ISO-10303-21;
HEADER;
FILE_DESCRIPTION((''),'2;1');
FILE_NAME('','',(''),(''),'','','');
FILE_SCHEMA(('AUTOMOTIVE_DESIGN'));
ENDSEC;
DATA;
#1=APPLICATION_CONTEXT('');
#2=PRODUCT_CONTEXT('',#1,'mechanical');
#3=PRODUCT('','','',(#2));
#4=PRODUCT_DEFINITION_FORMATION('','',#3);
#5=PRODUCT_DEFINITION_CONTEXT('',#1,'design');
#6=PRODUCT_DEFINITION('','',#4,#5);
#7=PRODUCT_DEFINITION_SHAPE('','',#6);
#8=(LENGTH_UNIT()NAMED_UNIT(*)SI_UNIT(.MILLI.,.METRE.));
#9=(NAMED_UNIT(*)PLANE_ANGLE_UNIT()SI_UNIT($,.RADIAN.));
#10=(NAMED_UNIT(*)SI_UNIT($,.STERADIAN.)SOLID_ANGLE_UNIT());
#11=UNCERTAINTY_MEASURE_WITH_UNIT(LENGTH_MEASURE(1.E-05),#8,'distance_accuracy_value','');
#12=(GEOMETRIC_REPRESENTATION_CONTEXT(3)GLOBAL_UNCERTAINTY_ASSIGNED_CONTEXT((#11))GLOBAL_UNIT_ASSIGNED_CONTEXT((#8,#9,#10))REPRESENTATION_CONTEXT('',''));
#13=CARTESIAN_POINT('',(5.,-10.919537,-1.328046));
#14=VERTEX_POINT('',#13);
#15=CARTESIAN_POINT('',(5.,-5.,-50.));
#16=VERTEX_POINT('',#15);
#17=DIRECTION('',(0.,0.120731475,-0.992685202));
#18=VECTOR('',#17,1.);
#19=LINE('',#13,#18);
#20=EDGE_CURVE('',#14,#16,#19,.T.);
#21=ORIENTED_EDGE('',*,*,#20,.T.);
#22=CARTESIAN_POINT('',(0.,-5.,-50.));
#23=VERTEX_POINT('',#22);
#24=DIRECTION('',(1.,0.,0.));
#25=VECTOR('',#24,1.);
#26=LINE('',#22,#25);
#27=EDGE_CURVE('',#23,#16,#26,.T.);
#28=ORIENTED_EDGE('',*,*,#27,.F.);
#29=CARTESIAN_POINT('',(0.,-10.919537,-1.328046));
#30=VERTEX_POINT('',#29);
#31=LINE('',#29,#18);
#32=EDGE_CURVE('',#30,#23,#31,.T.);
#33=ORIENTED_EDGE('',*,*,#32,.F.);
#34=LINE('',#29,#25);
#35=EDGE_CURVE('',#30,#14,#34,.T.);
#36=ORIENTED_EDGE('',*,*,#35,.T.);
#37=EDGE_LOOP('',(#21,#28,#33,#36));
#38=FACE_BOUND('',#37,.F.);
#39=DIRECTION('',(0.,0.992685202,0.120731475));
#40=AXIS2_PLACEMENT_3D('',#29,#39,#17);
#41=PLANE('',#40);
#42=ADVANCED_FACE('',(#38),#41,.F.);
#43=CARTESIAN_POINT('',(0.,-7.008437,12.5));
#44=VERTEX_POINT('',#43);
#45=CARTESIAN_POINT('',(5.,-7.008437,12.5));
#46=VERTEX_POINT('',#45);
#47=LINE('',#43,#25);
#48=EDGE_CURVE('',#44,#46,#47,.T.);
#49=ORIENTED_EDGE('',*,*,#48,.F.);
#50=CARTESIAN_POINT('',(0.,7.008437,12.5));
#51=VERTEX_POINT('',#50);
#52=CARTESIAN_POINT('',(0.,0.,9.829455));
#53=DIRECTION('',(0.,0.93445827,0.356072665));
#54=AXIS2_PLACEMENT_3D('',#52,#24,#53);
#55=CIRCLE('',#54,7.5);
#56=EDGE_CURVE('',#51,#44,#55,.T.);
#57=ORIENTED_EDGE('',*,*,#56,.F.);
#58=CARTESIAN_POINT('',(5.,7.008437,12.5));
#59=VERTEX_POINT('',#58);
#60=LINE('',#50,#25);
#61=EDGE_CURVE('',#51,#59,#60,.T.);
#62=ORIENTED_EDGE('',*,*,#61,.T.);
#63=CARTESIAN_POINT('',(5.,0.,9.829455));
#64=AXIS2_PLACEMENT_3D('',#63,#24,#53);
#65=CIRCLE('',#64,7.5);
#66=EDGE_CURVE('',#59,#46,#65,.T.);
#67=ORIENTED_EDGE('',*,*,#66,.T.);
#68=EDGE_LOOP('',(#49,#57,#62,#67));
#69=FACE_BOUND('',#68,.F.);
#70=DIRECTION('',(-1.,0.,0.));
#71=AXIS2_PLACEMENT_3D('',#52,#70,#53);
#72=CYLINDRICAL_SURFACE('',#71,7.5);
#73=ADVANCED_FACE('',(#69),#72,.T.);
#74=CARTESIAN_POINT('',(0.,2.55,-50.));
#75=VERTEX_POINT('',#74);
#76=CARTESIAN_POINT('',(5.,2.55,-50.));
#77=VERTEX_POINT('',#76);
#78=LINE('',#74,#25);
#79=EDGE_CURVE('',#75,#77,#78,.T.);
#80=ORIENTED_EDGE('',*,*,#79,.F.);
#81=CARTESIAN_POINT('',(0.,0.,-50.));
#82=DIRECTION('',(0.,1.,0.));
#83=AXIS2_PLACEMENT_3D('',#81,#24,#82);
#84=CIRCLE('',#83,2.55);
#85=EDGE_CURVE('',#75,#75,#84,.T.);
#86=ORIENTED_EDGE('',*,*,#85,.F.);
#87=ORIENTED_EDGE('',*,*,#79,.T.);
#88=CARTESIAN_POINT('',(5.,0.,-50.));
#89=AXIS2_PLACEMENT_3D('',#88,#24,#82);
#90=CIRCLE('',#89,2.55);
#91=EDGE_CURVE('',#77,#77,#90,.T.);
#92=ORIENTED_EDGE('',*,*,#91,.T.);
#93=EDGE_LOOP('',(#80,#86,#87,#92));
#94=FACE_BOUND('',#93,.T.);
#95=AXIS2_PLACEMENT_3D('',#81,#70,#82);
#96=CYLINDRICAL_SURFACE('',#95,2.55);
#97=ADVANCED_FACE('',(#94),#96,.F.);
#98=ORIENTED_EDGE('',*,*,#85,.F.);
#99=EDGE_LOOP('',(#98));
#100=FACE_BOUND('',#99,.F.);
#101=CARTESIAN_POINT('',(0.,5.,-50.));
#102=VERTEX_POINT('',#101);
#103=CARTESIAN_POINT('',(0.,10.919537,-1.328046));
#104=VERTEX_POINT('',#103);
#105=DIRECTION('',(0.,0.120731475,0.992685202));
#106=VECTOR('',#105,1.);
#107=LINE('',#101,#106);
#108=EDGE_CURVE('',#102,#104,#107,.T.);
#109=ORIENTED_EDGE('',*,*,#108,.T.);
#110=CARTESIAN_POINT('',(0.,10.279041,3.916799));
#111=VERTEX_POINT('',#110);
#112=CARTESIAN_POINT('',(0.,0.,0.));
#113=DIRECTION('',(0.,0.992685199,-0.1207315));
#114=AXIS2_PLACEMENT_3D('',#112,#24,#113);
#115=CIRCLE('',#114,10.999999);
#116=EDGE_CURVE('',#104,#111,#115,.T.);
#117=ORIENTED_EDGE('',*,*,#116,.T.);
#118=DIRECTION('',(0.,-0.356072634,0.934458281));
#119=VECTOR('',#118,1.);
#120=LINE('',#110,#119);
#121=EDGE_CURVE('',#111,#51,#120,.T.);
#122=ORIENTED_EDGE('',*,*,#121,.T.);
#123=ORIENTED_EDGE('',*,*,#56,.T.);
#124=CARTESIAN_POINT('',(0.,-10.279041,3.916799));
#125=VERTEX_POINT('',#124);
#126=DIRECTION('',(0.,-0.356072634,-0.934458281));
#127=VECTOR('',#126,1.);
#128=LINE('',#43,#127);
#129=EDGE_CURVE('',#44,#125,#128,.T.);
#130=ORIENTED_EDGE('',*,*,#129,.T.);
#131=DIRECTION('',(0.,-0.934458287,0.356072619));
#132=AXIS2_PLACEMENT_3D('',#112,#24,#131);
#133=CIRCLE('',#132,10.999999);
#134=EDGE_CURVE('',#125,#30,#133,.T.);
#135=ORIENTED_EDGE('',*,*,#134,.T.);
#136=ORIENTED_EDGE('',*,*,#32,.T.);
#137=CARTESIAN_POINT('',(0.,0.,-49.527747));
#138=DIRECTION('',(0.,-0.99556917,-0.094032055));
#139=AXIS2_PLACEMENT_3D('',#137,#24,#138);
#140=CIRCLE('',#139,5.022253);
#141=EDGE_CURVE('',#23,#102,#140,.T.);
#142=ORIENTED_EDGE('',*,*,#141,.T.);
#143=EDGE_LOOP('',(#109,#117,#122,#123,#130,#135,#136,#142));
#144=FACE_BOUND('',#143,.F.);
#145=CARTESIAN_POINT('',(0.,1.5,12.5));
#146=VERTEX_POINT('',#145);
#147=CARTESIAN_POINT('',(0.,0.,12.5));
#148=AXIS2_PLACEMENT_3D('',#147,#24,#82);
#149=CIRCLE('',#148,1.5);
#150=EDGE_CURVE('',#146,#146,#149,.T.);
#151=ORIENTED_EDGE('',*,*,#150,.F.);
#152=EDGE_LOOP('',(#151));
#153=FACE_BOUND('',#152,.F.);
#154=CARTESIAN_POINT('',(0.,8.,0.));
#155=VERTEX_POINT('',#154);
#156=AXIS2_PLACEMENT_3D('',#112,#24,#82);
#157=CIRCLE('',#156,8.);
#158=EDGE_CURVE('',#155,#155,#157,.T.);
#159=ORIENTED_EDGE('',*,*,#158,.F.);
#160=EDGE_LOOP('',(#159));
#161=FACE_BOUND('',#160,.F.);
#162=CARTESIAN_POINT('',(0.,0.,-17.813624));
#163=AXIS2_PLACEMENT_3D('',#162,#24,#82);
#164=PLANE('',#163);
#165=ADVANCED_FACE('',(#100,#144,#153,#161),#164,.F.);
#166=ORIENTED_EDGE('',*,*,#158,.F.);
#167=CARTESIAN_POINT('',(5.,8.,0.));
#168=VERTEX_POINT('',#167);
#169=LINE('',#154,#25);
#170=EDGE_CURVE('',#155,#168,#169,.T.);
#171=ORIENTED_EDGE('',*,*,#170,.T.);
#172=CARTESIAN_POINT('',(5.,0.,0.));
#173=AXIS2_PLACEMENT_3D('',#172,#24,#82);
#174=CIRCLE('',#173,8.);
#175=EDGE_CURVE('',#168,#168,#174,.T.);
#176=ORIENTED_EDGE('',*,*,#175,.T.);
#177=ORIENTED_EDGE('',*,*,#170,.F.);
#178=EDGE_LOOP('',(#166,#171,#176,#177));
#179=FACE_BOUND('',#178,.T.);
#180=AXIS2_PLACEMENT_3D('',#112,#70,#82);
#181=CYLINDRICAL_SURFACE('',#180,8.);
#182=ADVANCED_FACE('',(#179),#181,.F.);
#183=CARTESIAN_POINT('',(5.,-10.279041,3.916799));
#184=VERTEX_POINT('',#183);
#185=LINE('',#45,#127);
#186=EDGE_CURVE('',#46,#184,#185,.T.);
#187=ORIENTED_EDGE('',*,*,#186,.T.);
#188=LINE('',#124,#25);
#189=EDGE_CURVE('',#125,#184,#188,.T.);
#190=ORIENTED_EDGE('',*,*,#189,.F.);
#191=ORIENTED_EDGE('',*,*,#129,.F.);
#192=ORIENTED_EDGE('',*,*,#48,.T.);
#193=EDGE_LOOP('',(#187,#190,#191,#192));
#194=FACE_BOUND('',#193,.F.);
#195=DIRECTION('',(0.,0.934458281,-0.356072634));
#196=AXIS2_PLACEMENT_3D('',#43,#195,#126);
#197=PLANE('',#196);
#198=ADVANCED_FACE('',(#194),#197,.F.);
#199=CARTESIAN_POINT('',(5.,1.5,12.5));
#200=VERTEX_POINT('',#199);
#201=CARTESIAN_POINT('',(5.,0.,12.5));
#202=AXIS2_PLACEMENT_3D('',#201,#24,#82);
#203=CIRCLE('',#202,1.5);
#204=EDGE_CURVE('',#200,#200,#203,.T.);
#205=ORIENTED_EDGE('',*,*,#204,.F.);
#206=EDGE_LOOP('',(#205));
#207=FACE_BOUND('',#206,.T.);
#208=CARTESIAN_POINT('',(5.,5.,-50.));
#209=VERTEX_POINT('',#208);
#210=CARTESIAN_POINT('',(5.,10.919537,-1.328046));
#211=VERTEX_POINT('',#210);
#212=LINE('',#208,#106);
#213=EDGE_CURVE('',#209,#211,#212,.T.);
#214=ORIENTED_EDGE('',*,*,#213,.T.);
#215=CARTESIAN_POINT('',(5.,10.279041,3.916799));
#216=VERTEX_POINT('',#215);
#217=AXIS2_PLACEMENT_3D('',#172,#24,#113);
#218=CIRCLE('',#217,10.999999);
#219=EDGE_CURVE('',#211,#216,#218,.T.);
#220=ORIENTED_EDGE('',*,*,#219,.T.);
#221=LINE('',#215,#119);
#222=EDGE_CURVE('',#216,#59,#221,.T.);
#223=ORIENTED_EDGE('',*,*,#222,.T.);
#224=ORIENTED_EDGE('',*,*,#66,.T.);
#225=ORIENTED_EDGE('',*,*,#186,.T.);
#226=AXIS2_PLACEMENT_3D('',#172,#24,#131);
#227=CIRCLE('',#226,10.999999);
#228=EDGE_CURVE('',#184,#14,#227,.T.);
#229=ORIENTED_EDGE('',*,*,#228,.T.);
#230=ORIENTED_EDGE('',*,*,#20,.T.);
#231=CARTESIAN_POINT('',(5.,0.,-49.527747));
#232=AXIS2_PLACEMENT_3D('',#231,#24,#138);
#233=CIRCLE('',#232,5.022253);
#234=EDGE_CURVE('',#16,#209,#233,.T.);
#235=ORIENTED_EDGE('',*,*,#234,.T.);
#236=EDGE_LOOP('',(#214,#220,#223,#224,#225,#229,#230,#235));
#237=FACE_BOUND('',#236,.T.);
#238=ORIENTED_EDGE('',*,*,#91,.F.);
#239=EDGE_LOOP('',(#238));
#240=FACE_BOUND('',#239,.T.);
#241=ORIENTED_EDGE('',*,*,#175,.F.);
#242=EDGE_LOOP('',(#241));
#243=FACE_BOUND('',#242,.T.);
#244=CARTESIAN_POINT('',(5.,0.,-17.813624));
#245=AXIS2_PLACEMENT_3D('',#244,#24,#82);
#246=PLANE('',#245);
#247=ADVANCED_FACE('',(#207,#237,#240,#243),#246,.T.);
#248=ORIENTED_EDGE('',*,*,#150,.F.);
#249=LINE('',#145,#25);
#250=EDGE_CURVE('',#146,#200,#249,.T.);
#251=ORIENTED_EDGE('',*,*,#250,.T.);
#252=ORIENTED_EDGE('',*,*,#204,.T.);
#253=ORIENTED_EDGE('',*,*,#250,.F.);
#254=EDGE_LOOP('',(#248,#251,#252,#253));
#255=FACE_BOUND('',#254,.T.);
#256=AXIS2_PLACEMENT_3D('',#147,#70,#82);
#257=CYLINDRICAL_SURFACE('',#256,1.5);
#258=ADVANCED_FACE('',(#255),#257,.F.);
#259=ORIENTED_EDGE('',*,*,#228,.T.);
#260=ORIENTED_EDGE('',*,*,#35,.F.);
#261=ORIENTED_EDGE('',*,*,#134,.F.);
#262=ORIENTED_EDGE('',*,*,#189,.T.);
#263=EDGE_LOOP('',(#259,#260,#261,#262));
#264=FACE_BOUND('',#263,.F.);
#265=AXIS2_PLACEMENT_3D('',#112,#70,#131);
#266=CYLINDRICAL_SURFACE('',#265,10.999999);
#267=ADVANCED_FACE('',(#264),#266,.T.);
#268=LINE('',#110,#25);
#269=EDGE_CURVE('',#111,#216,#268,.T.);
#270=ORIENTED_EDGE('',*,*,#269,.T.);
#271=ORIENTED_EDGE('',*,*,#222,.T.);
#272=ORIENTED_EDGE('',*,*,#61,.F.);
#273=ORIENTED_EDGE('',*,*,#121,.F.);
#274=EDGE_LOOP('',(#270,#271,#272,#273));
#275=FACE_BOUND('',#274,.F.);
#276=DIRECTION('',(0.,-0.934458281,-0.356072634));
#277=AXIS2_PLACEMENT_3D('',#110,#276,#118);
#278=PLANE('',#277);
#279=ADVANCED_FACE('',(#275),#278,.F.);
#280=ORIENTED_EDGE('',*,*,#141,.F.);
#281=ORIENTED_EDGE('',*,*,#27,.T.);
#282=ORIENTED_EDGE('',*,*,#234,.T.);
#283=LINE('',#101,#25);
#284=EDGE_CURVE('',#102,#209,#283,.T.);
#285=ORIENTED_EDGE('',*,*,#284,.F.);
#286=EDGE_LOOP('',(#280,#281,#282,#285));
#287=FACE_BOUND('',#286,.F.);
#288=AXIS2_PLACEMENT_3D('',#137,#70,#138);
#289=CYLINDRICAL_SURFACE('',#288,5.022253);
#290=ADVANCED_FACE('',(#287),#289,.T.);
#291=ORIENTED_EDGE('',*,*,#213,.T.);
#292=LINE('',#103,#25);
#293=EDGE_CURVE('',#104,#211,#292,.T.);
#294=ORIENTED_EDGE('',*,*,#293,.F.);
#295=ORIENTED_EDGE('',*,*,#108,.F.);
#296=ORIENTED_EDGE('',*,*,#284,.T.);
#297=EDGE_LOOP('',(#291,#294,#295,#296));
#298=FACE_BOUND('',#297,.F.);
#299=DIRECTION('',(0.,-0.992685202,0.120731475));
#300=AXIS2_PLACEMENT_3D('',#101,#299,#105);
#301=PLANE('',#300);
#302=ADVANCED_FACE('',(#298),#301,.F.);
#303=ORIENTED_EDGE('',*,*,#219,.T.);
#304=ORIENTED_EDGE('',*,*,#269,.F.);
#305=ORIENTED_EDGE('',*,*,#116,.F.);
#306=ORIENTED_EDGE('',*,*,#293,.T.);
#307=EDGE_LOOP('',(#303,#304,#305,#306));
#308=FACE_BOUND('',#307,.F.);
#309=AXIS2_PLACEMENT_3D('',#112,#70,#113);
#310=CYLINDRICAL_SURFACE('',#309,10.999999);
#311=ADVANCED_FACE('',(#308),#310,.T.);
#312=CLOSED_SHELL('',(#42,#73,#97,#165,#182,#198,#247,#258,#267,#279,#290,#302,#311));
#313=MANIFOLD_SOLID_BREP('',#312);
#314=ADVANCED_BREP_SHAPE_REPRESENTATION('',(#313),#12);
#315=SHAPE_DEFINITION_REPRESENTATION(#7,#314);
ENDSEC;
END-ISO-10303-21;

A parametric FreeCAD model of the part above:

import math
import FreeCAD as App
import Part
import Sketcher

V = App.Vector
Q = App.Units.Quantity

doc = App.newDocument("Part")
params = doc.addObject("Spreadsheet::Sheet", "Params")
for row, (alias, value) in enumerate([
    ("sketch1_diameter", "16 mm"),
    ("sketch1_diameter2", "3 mm"),
    ("sketch1_radius", "10.999999 mm"),
    ("sketch1_diameter3", "5.1 mm"),
    ("sketch1_radius2", "7.5 mm"),
    ("pad1_length", "5 mm"),
], start=1):
    params.set(f"A{row}", alias)
    params.set(f"B{row}", "=" + value)
    params.setAlias(f"B{row}", alias)

body = doc.addObject("PartDesign::Body", "Body")

# Sketch on YZ plane
sketch1 = body.newObject("Sketcher::SketchObject", "Sketch")
sketch1.AttachmentSupport = (doc.getObject("YZ_Plane"), [""])
sketch1.MapMode = "FlatFace"
sketch1.addGeometry([
    Part.LineSegment(V(10.279041, 3.916799, 0), V(7.008437, 12.5, 0)),  # 0
    Part.ArcOfCircle(Part.Circle(V(0, 9.829455, 0), V(0, 0, 1), 7.5), math.radians(20.8592), math.radians(159.1408)),  # 1
    Part.LineSegment(V(-7.008437, 12.5, 0), V(-10.279041, 3.916799, 0)),  # 2
    Part.ArcOfCircle(Part.Circle(V(0, 0, 0), V(0, 0, 1), 10.999999), math.radians(159.140803), math.radians(186.934321)),  # 3
    Part.LineSegment(V(-10.919537, -1.328046, 0), V(-5, -50, 0)),  # 4
    Part.ArcOfCircle(Part.Circle(V(0, -49.527747, 0), V(0, 0, 1), 5.022253), math.radians(-174.604389), math.radians(-5.395611)),  # 5
    Part.LineSegment(V(5, -50, 0), V(10.919537, -1.328046, 0)),  # 6
    Part.ArcOfCircle(Part.Circle(V(0, 0, 0), V(0, 0, 1), 10.999999), math.radians(-6.934321), math.radians(20.859197)),  # 7
    Part.Circle(V(0, -50, 0), V(0, 0, 1), 2.55),  # 8
    Part.Circle(V(0, 0, 0), V(0, 0, 1), 8),  # 9
    Part.Circle(V(0, 12.5, 0), V(0, 0, 1), 1.5),  # 10
], False)
sketch1.addConstraint([
    Sketcher.Constraint("Tangent", 0, 2, 1, 1),
    Sketcher.Constraint("Tangent", 1, 2, 2, 1),
    Sketcher.Constraint("Tangent", 2, 2, 3, 1),
    Sketcher.Constraint("Tangent", 3, 2, 4, 1),
    Sketcher.Constraint("Coincident", 4, 2, 5, 1),
    Sketcher.Constraint("Coincident", 5, 2, 6, 1),
    Sketcher.Constraint("Tangent", 6, 2, 7, 1),
    Sketcher.Constraint("Tangent", 7, 2, 0, 1),
    Sketcher.Constraint("Coincident", 3, 3, -1, 1),
    Sketcher.Constraint("Coincident", 7, 3, -1, 1),
    Sketcher.Constraint("Coincident", 9, 3, -1, 1),
    Sketcher.Constraint("Equal", 3, 7),
    Sketcher.Constraint("Symmetric", 4, 2, 5, 2, -2),
    Sketcher.Constraint("PointOnObject", 1, 3, -2),
    Sketcher.Constraint("PointOnObject", 8, 3, -2),
    Sketcher.Constraint("PointOnObject", 10, 3, -2),
    Sketcher.Constraint("Horizontal", 10, 3, 0, 2),
    Sketcher.Constraint("Horizontal", 8, 3, 4, 2),
    Sketcher.Constraint("Diameter", 9, Q("16 mm")),
    Sketcher.Constraint("Diameter", 10, Q("3 mm")),
    Sketcher.Constraint("Radius", 3, Q("10.999999 mm")),
    Sketcher.Constraint("Diameter", 8, Q("5.1 mm")),
    Sketcher.Constraint("Radius", 1, Q("7.5 mm")),
    Sketcher.Constraint("DistanceY", 8, 3, -1, 1, Q("50 mm")),
    Sketcher.Constraint("DistanceX", 4, 2, -1, 1, Q("5 mm")),
    Sketcher.Constraint("DistanceY", -1, 1, 10, 3, Q("12.5 mm")),
    Sketcher.Constraint("Radius", 5, Q("5.022253 mm")),
])
sketch1.setExpression("Constraints[18]", "Params.sketch1_diameter")
sketch1.setExpression("Constraints[19]", "Params.sketch1_diameter2")
sketch1.setExpression("Constraints[20]", "Params.sketch1_radius")
sketch1.setExpression("Constraints[21]", "Params.sketch1_diameter3")
sketch1.setExpression("Constraints[22]", "Params.sketch1_radius2")
pad1 = body.newObject("PartDesign::Pad", "Pad")
pad1.Profile = sketch1
pad1.setExpression("Length", "Params.pad1_length")

doc.recompute()
